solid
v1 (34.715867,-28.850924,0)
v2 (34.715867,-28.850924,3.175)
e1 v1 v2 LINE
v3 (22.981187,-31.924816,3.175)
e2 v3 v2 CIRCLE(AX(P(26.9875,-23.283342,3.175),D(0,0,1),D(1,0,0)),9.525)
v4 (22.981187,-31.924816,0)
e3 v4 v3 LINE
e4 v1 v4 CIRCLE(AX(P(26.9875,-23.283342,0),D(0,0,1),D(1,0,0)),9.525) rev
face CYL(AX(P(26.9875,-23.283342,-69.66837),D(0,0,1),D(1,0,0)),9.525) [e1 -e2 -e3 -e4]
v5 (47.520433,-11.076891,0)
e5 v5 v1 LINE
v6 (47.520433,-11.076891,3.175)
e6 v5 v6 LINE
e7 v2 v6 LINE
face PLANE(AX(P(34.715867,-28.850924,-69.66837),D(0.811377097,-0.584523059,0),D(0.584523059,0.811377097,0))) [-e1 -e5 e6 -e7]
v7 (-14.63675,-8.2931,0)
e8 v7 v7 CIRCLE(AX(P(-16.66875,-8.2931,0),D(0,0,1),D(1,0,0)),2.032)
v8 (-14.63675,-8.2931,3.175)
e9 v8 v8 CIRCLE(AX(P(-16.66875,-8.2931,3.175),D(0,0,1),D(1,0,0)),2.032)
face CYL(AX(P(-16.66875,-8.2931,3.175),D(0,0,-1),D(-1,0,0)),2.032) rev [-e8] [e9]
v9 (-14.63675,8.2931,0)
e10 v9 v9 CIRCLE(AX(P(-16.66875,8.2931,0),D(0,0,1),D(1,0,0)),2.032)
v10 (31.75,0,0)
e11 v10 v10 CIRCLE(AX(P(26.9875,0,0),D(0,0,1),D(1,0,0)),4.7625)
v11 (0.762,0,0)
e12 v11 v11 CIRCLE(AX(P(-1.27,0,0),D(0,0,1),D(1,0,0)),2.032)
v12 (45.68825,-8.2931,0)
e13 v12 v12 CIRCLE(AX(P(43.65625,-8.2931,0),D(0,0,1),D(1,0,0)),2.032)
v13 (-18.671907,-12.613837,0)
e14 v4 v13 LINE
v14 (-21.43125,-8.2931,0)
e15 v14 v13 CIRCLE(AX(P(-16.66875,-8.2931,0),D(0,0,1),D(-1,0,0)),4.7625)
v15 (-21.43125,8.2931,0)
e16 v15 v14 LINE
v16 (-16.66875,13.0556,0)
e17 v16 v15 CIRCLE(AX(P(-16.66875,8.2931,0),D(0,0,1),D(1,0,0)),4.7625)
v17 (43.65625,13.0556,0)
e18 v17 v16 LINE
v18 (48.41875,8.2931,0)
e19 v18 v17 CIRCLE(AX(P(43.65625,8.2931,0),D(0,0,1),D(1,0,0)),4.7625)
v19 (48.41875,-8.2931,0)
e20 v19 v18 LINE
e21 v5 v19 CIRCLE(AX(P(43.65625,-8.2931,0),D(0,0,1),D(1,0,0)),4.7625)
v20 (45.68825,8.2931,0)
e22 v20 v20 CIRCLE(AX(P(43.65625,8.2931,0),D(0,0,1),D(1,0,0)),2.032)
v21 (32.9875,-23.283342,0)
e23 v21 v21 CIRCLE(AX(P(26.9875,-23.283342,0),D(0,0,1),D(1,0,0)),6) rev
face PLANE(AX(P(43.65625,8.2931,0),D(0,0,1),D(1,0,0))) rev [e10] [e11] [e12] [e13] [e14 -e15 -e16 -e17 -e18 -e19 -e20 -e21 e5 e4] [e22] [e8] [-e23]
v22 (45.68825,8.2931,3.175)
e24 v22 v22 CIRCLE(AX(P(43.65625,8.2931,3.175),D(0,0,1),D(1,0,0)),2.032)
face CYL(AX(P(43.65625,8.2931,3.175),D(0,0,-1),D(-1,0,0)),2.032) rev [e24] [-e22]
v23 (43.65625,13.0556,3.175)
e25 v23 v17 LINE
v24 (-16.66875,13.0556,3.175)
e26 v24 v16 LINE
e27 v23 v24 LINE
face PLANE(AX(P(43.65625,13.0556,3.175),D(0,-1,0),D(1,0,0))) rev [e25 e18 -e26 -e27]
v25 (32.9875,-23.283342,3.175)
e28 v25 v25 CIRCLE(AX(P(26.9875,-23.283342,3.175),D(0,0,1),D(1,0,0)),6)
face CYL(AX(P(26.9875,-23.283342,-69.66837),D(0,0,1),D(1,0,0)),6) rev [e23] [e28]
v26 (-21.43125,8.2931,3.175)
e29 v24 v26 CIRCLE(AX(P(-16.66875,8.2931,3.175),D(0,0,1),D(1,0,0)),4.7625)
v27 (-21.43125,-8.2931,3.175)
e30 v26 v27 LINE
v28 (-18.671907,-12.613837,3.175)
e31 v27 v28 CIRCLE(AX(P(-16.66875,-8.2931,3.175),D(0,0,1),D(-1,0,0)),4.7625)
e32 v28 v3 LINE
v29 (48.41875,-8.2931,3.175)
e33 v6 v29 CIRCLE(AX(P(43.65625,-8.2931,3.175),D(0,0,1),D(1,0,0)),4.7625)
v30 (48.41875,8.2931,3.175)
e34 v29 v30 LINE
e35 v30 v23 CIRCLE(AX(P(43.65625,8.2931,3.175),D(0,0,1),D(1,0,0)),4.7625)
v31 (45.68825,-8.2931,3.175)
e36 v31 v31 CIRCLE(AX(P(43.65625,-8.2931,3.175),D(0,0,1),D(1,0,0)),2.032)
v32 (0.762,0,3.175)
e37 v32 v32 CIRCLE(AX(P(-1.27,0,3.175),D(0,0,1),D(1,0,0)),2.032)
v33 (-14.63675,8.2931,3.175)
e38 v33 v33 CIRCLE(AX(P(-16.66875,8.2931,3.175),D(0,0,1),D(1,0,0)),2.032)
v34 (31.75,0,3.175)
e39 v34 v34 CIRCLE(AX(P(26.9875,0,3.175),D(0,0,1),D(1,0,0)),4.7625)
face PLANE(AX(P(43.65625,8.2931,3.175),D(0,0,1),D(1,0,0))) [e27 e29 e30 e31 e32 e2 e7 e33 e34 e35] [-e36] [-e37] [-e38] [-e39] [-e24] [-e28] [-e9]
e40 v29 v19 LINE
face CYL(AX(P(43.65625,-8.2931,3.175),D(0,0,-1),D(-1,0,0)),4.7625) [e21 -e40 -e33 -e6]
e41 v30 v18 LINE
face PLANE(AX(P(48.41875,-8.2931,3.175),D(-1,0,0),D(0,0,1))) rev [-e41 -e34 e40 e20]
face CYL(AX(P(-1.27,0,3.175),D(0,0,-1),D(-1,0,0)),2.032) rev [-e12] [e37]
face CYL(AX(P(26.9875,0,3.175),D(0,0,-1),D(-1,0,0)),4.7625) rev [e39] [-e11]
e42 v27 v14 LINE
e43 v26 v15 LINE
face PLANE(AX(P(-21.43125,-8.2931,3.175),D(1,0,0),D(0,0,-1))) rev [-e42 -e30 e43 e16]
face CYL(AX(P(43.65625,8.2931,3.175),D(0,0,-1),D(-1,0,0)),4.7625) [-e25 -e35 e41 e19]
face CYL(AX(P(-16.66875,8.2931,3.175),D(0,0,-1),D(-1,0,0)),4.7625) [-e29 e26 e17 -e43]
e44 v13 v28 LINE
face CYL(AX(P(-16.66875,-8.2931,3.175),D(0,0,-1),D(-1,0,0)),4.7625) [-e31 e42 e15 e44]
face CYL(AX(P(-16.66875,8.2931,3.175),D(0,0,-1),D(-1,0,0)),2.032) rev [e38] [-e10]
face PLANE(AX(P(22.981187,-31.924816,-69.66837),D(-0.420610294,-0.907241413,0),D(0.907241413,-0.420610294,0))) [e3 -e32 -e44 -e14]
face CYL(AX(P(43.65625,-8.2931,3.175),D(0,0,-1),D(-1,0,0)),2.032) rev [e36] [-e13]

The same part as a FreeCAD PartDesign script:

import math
import FreeCAD as App
import Part
import Sketcher

V = App.Vector
Q = App.Units.Quantity

doc = App.newDocument("Part")
body = doc.addObject("PartDesign::Body", "Body")

# Sketch on XY plane
sketch1 = body.newObject("Sketcher::SketchObject", "Sketch")
sketch1.AttachmentSupport = (doc.getObject("XY_Plane"), [""])
sketch1.MapMode = "FlatFace"
sketch1.addGeometry(Part.LineSegment(V(-16.7, -13.1, 0), V(43.7, -13.1, 0)), False)
sketch1.addGeometry(Part.ArcOfCircle(Part.Circle(V(43.7, -8.3, 0), V(0, 0, 1), 4.8), math.radians(-90), math.radians(0)), False)
sketch1.addGeometry(Part.LineSegment(V(48.4, -8.3, 0), V(48.4, 8.3, 0)), False)
sketch1.addGeometry(Part.ArcOfCircle(Part.Circle(V(43.7, 8.3, 0), V(0, 0, 1), 4.8), math.radians(0), math.radians(90)), False)
sketch1.addGeometry(Part.LineSegment(V(43.7, 13.1, 0), V(-16.7, 13.1, 0)), False)
sketch1.addGeometry(Part.ArcOfCircle(Part.Circle(V(-16.7, 8.3, 0), V(0, 0, 1), 4.8), math.radians(90), math.radians(180)), False)
sketch1.addGeometry(Part.LineSegment(V(-21.4, 8.3, 0), V(-21.4, -8.3, 0)), False)
sketch1.addGeometry(Part.ArcOfCircle(Part.Circle(V(-16.7, -8.3, 0), V(0, 0, 1), 4.8), math.radians(-180), math.radians(-90)), False)
sketch1.addGeometry(Part.Circle(V(43.7, -8.3, 0), V(0, 0, 1), 2), False)
sketch1.addGeometry(Part.Circle(V(-16.7, -8.3, 0), V(0, 0, 1), 2), False)
sketch1.addGeometry(Part.Circle(V(27, 0, 0), V(0, 0, 1), 4.8), False)
sketch1.addGeometry(Part.Circle(V(43.7, 8.3, 0), V(0, 0, 1), 2), False)
sketch1.addGeometry(Part.Circle(V(-1.3, 0, 0), V(0, 0, 1), 2), False)
sketch1.addGeometry(Part.Circle(V(-16.7, 8.3, 0), V(0, 0, 1), 2), False)
sketch1.addConstraint(Sketcher.Constraint("Tangent", 0, 2, 1, 1))
sketch1.addConstraint(Sketcher.Constraint("Tangent", 1, 2, 2, 1))
sketch1.addConstraint(Sketcher.Constraint("Tangent", 2, 2, 3, 1))
sketch1.addConstraint(Sketcher.Constraint("Tangent", 3, 2, 4, 1))
sketch1.addConstraint(Sketcher.Constraint("Tangent", 4, 2, 5, 1))
sketch1.addConstraint(Sketcher.Constraint("Tangent", 5, 2, 6, 1))
sketch1.addConstraint(Sketcher.Constraint("Tangent", 6, 2, 7, 1))
sketch1.addConstraint(Sketcher.Constraint("Tangent", 7, 2, 0, 1))
sketch1.addConstraint(Sketcher.Constraint("Horizontal", 0))
sketch1.addConstraint(Sketcher.Constraint("Vertical", 2))
sketch1.addConstraint(Sketcher.Constraint("Horizontal", 4))
sketch1.addConstraint(Sketcher.Constraint("Vertical", 6))
sketch1.addConstraint(Sketcher.Constraint("Coincident", 8, 3, 1, 3))
sketch1.addConstraint(Sketcher.Constraint("Coincident", 9, 3, 7, 3))
sketch1.addConstraint(Sketcher.Constraint("Coincident", 11, 3, 3, 3))
sketch1.addConstraint(Sketcher.Constraint("Coincident", 13, 3, 5, 3))
sketch1.addConstraint(Sketcher.Constraint("Equal", 1, 3))
sketch1.addConstraint(Sketcher.Constraint("Equal", 3, 5))
sketch1.addConstraint(Sketcher.Constraint("Equal", 5, 7))
sketch1.addConstraint(Sketcher.Constraint("Equal", 8, 9))
sketch1.addConstraint(Sketcher.Constraint("Equal", 7, 10))
sketch1.addConstraint(Sketcher.Constraint("Equal", 9, 11))
sketch1.addConstraint(Sketcher.Constraint("Equal", 11, 12))
sketch1.addConstraint(Sketcher.Constraint("Equal", 12, 13))
sketch1.addConstraint(Sketcher.Constraint("PointOnObject", 10, 3, -1))
sketch1.addConstraint(Sketcher.Constraint("PointOnObject", 12, 3, -1))
sketch1.addConstraint(Sketcher.Constraint("Diameter", 8, Q("0.16 in")))
sketch1.addConstraint(Sketcher.Constraint("Diameter", 10, Q("0.375 in")))
sketch1.addConstraint(Sketcher.Constraint("DistanceX", 0, 1, 0, 2, Q("2.375 in")))
sketch1.addConstraint(Sketcher.Constraint("DistanceY", 2, 1, 2, 2, Q("0.653 in")))
sketch1.addConstraint(Sketcher.Constraint("DistanceX", 12, 3, -1, 1, Q("0.05 in")))
sketch1.addConstraint(Sketcher.Constraint("DistanceX", -1, 1, 1, 3, Q("1.71875 in")))
sketch1.addConstraint(Sketcher.Constraint("DistanceX", -1, 1, 10, 3, Q("1.0625 in")))
sketch1.addConstraint(Sketcher.Constraint("DistanceY", 0, 2, -1, 1, Q("0.514 in")))
pad1 = body.newObject("PartDesign::Pad", "Pad")
pad1.Profile = sketch1
pad1.Length = Q("0.125 in")

# Sketch on XY plane
sketch2 = body.newObject("Sketcher::SketchObject", "Sketch001")
sketch2.AttachmentSupport = (doc.getObject("XY_Plane"), [""])
sketch2.MapMode = "FlatFace"
sketch2.addGeometry(Part.LineSegment(V(-18.7, -12.6, 0), V(23, -31.9, 0)), False)
sketch2.addGeometry(Part.ArcOfCircle(Part.Circle(V(27, -23.3, 0), V(0, 0, 1), 9.5), math.radians(-115), math.radians(-36)), False)
sketch2.addGeometry(Part.LineSegment(V(34.7, -28.9, 0), V(47.5, -11.1, 0)), False)
sketch2.addGeometry(Part.ArcOfCircle(Part.Circle(V(43.7, -8.3, 0), V(0, 0, 1), 4.8), math.radians(-90), math.radians(-36)), False)
sketch2.addGeometry(Part.LineSegment(V(43.7, -13.1, 0), V(-16.7, -13.1, 0)), False)
sketch2.addGeometry(Part.ArcOfCircle(Part.Circle(V(-16.7, -8.3, 0), V(0, 0, 1), 4.8), math.radians(-115), math.radians(-90)), False)
sketch2.addGeometry(Part.Circle(V(27, -23.3, 0), V(0, 0, 1), 6), False)
sketch2.addConstraint(Sketcher.Constraint("Tangent", 0, 2, 1, 1))
sketch2.addConstraint(Sketcher.Constraint("Tangent", 1, 2, 2, 1))
sketch2.addConstraint(Sketcher.Constraint("Tangent", 2, 2, 3, 2))
sketch2.addConstraint(Sketcher.Constraint("Tangent", 3, 1, 4, 1))
sketch2.addConstraint(Sketcher.Constraint("Tangent", 4, 2, 5, 2))
sketch2.addConstraint(Sketcher.Constraint("Tangent", 5, 1, 0, 1))
sketch2.addConstraint(Sketcher.Constraint("Horizontal", 4))
sketch2.addConstraint(Sketcher.Constraint("Coincident", 6, 3, 1, 3))
sketch2.addConstraint(Sketcher.Constraint("Equal", 3, 5))
sketch2.addConstraint(Sketcher.Constraint("Radius", 1, Q("0.375 in")))
sketch2.addConstraint(Sketcher.Constraint("Radius", 3, Q("0.1875 in")))
sketch2.addConstraint(Sketcher.Constraint("Diameter", 6, Q("12 mm")))
sketch2.addConstraint(Sketcher.Constraint("DistanceX", 4, 2, 4, 1, Q("2.375 in")))
sketch2.addConstraint(Sketcher.Constraint("DistanceX", -1, 1, 1, 3, Q("1.0625 in")))
sketch2.addConstraint(Sketcher.Constraint("DistanceX", -1, 1, 3, 3, Q("1.71875 in")))
sketch2.addConstraint(Sketcher.Constraint("DistanceY", 3, 1, -1, 1, Q("0.514 in")))
sketch2.addConstraint(Sketcher.Constraint("DistanceY", 1, 3, -1, 1, Q("23.283342 mm")))
pad2 = body.newObject("PartDesign::Pad", "Pad001")
pad2.Profile = sketch2
pad2.Length = Q("0.125 in")

doc.recompute()
